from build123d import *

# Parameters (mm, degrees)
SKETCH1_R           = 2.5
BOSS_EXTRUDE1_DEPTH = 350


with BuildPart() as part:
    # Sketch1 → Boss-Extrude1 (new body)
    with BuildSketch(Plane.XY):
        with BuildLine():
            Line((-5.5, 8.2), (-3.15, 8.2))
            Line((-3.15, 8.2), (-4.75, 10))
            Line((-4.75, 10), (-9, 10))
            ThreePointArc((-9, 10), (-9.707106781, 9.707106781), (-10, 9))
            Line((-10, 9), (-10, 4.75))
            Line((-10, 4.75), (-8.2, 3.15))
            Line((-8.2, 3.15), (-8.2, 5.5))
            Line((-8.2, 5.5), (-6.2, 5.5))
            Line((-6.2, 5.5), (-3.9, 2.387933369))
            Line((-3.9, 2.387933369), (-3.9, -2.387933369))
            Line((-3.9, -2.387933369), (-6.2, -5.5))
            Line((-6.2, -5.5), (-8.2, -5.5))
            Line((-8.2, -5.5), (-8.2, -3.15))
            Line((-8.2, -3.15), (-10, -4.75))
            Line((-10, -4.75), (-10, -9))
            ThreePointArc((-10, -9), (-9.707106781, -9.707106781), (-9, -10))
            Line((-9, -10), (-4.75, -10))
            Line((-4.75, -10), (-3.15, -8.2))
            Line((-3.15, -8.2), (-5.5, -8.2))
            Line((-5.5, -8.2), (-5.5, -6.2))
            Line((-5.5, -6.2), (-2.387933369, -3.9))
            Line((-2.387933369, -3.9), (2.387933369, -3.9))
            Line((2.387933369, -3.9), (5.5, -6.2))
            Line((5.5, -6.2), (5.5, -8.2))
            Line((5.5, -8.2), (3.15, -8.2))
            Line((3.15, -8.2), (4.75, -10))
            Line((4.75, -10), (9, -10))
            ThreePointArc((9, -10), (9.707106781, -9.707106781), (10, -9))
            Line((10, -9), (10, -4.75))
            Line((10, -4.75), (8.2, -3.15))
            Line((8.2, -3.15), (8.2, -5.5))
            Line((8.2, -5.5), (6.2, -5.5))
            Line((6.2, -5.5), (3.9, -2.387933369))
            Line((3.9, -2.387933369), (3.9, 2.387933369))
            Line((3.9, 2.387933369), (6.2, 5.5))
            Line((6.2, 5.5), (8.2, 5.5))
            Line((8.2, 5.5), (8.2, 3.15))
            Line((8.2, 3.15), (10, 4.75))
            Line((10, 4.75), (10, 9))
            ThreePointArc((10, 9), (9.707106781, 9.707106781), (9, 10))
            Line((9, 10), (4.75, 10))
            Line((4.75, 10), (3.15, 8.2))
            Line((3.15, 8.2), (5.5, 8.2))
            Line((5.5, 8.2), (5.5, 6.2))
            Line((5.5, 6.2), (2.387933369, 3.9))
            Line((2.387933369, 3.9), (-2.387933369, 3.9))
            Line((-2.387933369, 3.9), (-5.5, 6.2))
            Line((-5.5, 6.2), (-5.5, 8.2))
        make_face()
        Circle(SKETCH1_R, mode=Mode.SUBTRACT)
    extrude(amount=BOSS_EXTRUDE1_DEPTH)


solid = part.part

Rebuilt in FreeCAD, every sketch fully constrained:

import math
import FreeCAD as App
import Part
import Sketcher

V = App.Vector

doc = App.newDocument("Part")
params = doc.addObject("Spreadsheet::Sheet", "Params")
for row, (alias, value) in enumerate([
    ("sketch1_diameter", "5 mm"),
    ("sketch1_radius", "1 mm"),
    ("sketch1_width", "2 mm"),
    ("sketch1_width2", "2.35 mm"),
    ("sketch1_width3", "4.25 mm"),
    ("pad1_length", "350 mm"),
], start=1):
    params.set(f"A{row}", alias)
    params.set(f"B{row}", "=" + value)
    params.setAlias(f"B{row}", alias)

body = doc.addObject("PartDesign::Body", "Body")

sketch1 = body.newObject("Sketcher::SketchObject", "Sketch")
sketch1.AttachmentSupport = (doc.getObject("XY_Plane"), [""])
sketch1.MapMode = "FlatFace"
sketch1.addGeometry(Part.LineSegment(V(-5.5, 8.2, 0), V(-3.1, 8.2, 0)), False)
sketch1.addGeometry(Part.LineSegment(V(-3.1, 8.2, 0), V(-4.8, 10, 0)), False)
sketch1.addGeometry(Part.LineSegment(V(-4.8, 10, 0), V(-9, 10, 0)), False)
sketch1.addGeometry(Part.ArcOfCircle(Part.Circle(V(-9, 9, 0), V(0, 0, 1), 1), math.radians(90), math.radians(180)), False)
sketch1.addGeometry(Part.LineSegment(V(-10, 9, 0), V(-10, 4.8, 0)), False)
sketch1.addGeometry(Part.LineSegment(V(-10, 4.8, 0), V(-8.2, 3.1, 0)), False)
sketch1.addGeometry(Part.LineSegment(V(-8.2, 3.1, 0), V(-8.2, 5.5, 0)), False)
sketch1.addGeometry(Part.LineSegment(V(-8.2, 5.5, 0), V(-6.2, 5.5, 0)), False)
sketch1.addGeometry(Part.LineSegment(V(-6.2, 5.5, 0), V(-3.9, 2.4, 0)), False)
sketch1.addGeometry(Part.LineSegment(V(-3.9, 2.4, 0), V(-3.9, -2.4, 0)), False)
sketch1.addGeometry(Part.LineSegment(V(-3.9, -2.4, 0), V(-6.2, -5.5, 0)), False)
sketch1.addGeometry(Part.LineSegment(V(-6.2, -5.5, 0), V(-8.2, -5.5, 0)), False)
sketch1.addGeometry(Part.LineSegment(V(-8.2, -5.5, 0), V(-8.2, -3.1, 0)), False)
sketch1.addGeometry(Part.LineSegment(V(-8.2, -3.1, 0), V(-10, -4.8, 0)), False)
sketch1.addGeometry(Part.LineSegment(V(-10, -4.8, 0), V(-10, -9, 0)), False)
sketch1.addGeometry(Part.ArcOfCircle(Part.Circle(V(-9, -9, 0), V(0, 0, 1), 1), math.radians(-180), math.radians(-90)), False)
sketch1.addGeometry(Part.LineSegment(V(-9, -10, 0), V(-4.8, -10, 0)), False)
sketch1.addGeometry(Part.LineSegment(V(-4.8, -10, 0), V(-3.1, -8.2, 0)), False)
sketch1.addGeometry(Part.LineSegment(V(-3.1, -8.2, 0), V(-5.5, -8.2, 0)), False)
sketch1.addGeometry(Part.LineSegment(V(-5.5, -8.2, 0), V(-5.5, -6.2, 0)), False)
sketch1.addGeometry(Part.LineSegment(V(-5.5, -6.2, 0), V(-2.4, -3.9, 0)), False)
sketch1.addGeometry(Part.LineSegment(V(-2.4, -3.9, 0), V(2.4, -3.9, 0)), False)
sketch1.addGeometry(Part.LineSegment(V(2.4, -3.9, 0), V(5.5, -6.2, 0)), False)
sketch1.addGeometry(Part.LineSegment(V(5.5, -6.2, 0), V(5.5, -8.2, 0)), False)
sketch1.addGeometry(Part.LineSegment(V(5.5, -8.2, 0), V(3.1, -8.2, 0)), False)
sketch1.addGeometry(Part.LineSegment(V(3.1, -8.2, 0), V(4.8, -10, 0)), False)
sketch1.addGeometry(Part.LineSegment(V(4.8, -10, 0), V(9, -10, 0)), False)
sketch1.addGeometry(Part.ArcOfCircle(Part.Circle(V(9, -9, 0), V(0, 0, 1), 1), math.radians(-90), math.radians(0)), False)
sketch1.addGeometry(Part.LineSegment(V(10, -9, 0), V(10, -4.8, 0)), False)
sketch1.addGeometry(Part.LineSegment(V(10, -4.8, 0), V(8.2, -3.1, 0)), False)
sketch1.addGeometry(Part.LineSegment(V(8.2, -3.1, 0), V(8.2, -5.5, 0)), False)
sketch1.addGeometry(Part.LineSegment(V(8.2, -5.5, 0), V(6.2, -5.5, 0)), False)
sketch1.addGeometry(Part.LineSegment(V(6.2, -5.5, 0), V(3.9, -2.4, 0)), False)
sketch1.addGeometry(Part.LineSegment(V(3.9, -2.4, 0), V(3.9, 2.4, 0)), False)
sketch1.addGeometry(Part.LineSegment(V(3.9, 2.4, 0), V(6.2, 5.5, 0)), False)
sketch1.addGeometry(Part.LineSegment(V(6.2, 5.5, 0), V(8.2, 5.5, 0)), False)
sketch1.addGeometry(Part.LineSegment(V(8.2, 5.5, 0), V(8.2, 3.1, 0)), False)
sketch1.addGeometry(Part.LineSegment(V(8.2, 3.1, 0), V(10, 4.8, 0)), False)
sketch1.addGeometry(Part.LineSegment(V(10, 4.8, 0), V(10, 9, 0)), False)
sketch1.addGeometry(Part.ArcOfCircle(Part.Circle(V(9, 9, 0), V(0, 0, 1), 1), math.radians(0), math.radians(90)), False)
sketch1.addGeometry(Part.LineSegment(V(9, 10, 0), V(4.8, 10, 0)), False)
sketch1.addGeometry(Part.LineSegment(V(4.8, 10, 0), V(3.1, 8.2, 0)), False)
sketch1.addGeometry(Part.LineSegment(V(3.1, 8.2, 0), V(5.5, 8.2, 0)), False)
sketch1.addGeometry(Part.LineSegment(V(5.5, 8.2, 0), V(5.5, 6.2, 0)), False)
sketch1.addGeometry(Part.LineSegment(V(5.5, 6.2, 0), V(2.4, 3.9, 0)), False)
sketch1.addGeometry(Part.LineSegment(V(2.4, 3.9, 0), V(-2.4, 3.9, 0)), False)
sketch1.addGeometry(Part.LineSegment(V(-2.4, 3.9, 0), V(-5.5, 6.2, 0)), False)
sketch1.addGeometry(Part.LineSegment(V(-5.5, 6.2, 0), V(-5.5, 8.2, 0)), False)
sketch1.addGeometry(Part.Circle(V(0, 0, 0), V(0, 0, 1), 2.5), False)
sketch1.addConstraint(Sketcher.Constraint("Coincident", 0, 2, 1, 1))
sketch1.addConstraint(Sketcher.Constraint("Coincident", 1, 2, 2, 1))
sketch1.addConstraint(Sketcher.Constraint("Tangent", 2, 2, 3, 1))
sketch1.addConstraint(Sketcher.Constraint("Tangent", 3, 2, 4, 1))
sketch1.addConstraint(Sketcher.Constraint("Coincident", 4, 2, 5, 1))
sketch1.addConstraint(Sketcher.Constraint("Coincident", 5, 2, 6, 1))
sketch1.addConstraint(Sketcher.Constraint("Coincident", 6, 2, 7, 1))
sketch1.addConstraint(Sketcher.Constraint("Coincident", 7, 2, 8, 1))
sketch1.addConstraint(Sketcher.Constraint("Coincident", 8, 2, 9, 1))
sketch1.addConstraint(Sketcher.Constraint("Coincident", 9, 2, 10, 1))
sketch1.addConstraint(Sketcher.Constraint("Coincident", 10, 2, 11, 1))
sketch1.addConstraint(Sketcher.Constraint("Coincident", 11, 2, 12, 1))
sketch1.addConstraint(Sketcher.Constraint("Coincident", 12, 2, 13, 1))
sketch1.addConstraint(Sketcher.Constraint("Coincident", 13, 2, 14, 1))
sketch1.addConstraint(Sketcher.Constraint("Tangent", 14, 2, 15, 1))
sketch1.addConstraint(Sketcher.Constraint("Tangent", 15, 2, 16, 1))
sketch1.addConstraint(Sketcher.Constraint("Coincident", 16, 2, 17, 1))
sketch1.addConstraint(Sketcher.Constraint("Coincident", 17, 2, 18, 1))
sketch1.addConstraint(Sketcher.Constraint("Coincident", 18, 2, 19, 1))
sketch1.addConstraint(Sketcher.Constraint("Coincident", 19, 2, 20, 1))
sketch1.addConstraint(Sketcher.Constraint("Coincident", 20, 2, 21, 1))
sketch1.addConstraint(Sketcher.Constraint("Coincident", 21, 2, 22, 1))
sketch1.addConstraint(Sketcher.Constraint("Coincident", 22, 2, 23, 1))
sketch1.addConstraint(Sketcher.Constraint("Coincident", 23, 2, 24, 1))
sketch1.addConstraint(Sketcher.Constraint("Coincident", 24, 2, 25, 1))
sketch1.addConstraint(Sketcher.Constraint("Coincident", 25, 2, 26, 1))
sketch1.addConstraint(Sketcher.Constraint("Tangent", 26, 2, 27, 1))
sketch1.addConstraint(Sketcher.Constraint("Tangent", 27, 2, 28, 1))
sketch1.addConstraint(Sketcher.Constraint("Coincident", 28, 2, 29, 1))
sketch1.addConstraint(Sketcher.Constraint("Coincident", 29, 2, 30, 1))
sketch1.addConstraint(Sketcher.Constraint("Coincident", 30, 2, 31, 1))
sketch1.addConstraint(Sketcher.Constraint("Coincident", 31, 2, 32, 1))
sketch1.addConstraint(Sketcher.Constraint("Coincident", 32, 2, 33, 1))
sketch1.addConstraint(Sketcher.Constraint("Coincident", 33, 2, 34, 1))
sketch1.addConstraint(Sketcher.Constraint("Coincident", 34, 2, 35, 1))
sketch1.addConstraint(Sketcher.Constraint("Coincident", 35, 2, 36, 1))
sketch1.addConstraint(Sketcher.Constraint("Coincident", 36, 2, 37, 1))
sketch1.addConstraint(Sketcher.Constraint("Coincident", 37, 2, 38, 1))
sketch1.addConstraint(Sketcher.Constraint("Tangent", 38, 2, 39, 1))
sketch1.addConstraint(Sketcher.Constraint("Tangent", 39, 2, 40, 1))
sketch1.addConstraint(Sketcher.Constraint("Coincident", 40, 2, 41, 1))
sketch1.addConstraint(Sketcher.Constraint("Coincident", 41, 2, 42, 1))
sketch1.addConstraint(Sketcher.Constraint("Coincident", 42, 2, 43, 1))
sketch1.addConstraint(Sketcher.Constraint("Coincident", 43, 2, 44, 1))
sketch1.addConstraint(Sketcher.Constraint("Coincident", 44, 2, 45, 1))
sketch1.addConstraint(Sketcher.Constraint("Coincident", 45, 2, 46, 1))
sketch1.addConstraint(Sketcher.Constraint("Coincident", 46, 2, 47, 1))
sketch1.addConstraint(Sketcher.Constraint("Coincident", 47, 2, 0, 1))
sketch1.addConstraint(Sketcher.Constraint("Horizontal", 0))
sketch1.addConstraint(Sketcher.Constraint("Horizontal", 2))
sketch1.addConstraint(Sketcher.Constraint("Vertical", 4))
sketch1.addConstraint(Sketcher.Constraint("Vertical", 6))
sketch1.addConstraint(Sketcher.Constraint("Horizontal", 7))
sketch1.addConstraint(Sketcher.Constraint("Vertical", 9))
sketch1.addConstraint(Sketcher.Constraint("Horizontal", 11))
sketch1.addConstraint(Sketcher.Constraint("Vertical", 12))
sketch1.addConstraint(Sketcher.Constraint("Vertical", 14))
sketch1.addConstraint(Sketcher.Constraint("Horizontal", 16))
sketch1.addConstraint(Sketcher.Constraint("Horizontal", 18))
sketch1.addConstraint(Sketcher.Constraint("Vertical", 19))
sketch1.addConstraint(Sketcher.Constraint("Horizontal", 21))
sketch1.addConstraint(Sketcher.Constraint("Vertical", 23))
sketch1.addConstraint(Sketcher.Constraint("Horizontal", 24))
sketch1.addConstraint(Sketcher.Constraint("Horizontal", 26))
sketch1.addConstraint(Sketcher.Constraint("Vertical", 28))
sketch1.addConstraint(Sketcher.Constraint("Vertical", 30))
sketch1.addConstraint(Sketcher.Constraint("Horizontal", 31))
sketch1.addConstraint(Sketcher.Constraint("Vertical", 33))
sketch1.addConstraint(Sketcher.Constraint("Horizontal", 35))
sketch1.addConstraint(Sketcher.Constraint("Vertical", 36))
sketch1.addConstraint(Sketcher.Constraint("Vertical", 38))
sketch1.addConstraint(Sketcher.Constraint("Horizontal", 40))
sketch1.addConstraint(Sketcher.Constraint("Horizontal", 42))
sketch1.addConstraint(Sketcher.Constraint("Vertical", 43))
sketch1.addConstraint(Sketcher.Constraint("Horizontal", 45))
sketch1.addConstraint(Sketcher.Constraint("Vertical", 47))
sketch1.addConstraint(Sketcher.Constraint("Coincident", 48, 3, -1, 1))
sketch1.addConstraint(Sketcher.Constraint("Equal", 3, 15))
sketch1.addConstraint(Sketcher.Constraint("Equal", 15, 27))
sketch1.addConstraint(Sketcher.Constraint("Equal", 27, 39))
sketch1.addConstraint(Sketcher.Constraint("Symmetric", 3, 3, 27, 3, -1, 1))
sketch1.addConstraint(Sketcher.Constraint("Symmetric", 15, 3, 39, 3, -1, 1))
sketch1.addConstraint(Sketcher.Constraint("Symmetric", 0, 2, 24, 2, -1, 1))
sketch1.addConstraint(Sketcher.Constraint("Symmetric", 5, 2, 29, 2, -1, 1))
sketch1.addConstraint(Sketcher.Constraint("Symmetric", 7, 2, 31, 2, -1, 1))
sketch1.addConstraint(Sketcher.Constraint("Symmetric", 8, 2, 32, 2, -1, 1))
sketch1.addConstraint(Sketcher.Constraint("Symmetric", 10, 2, 34, 2, -1, 1))
sketch1.addConstraint(Sketcher.Constraint("Symmetric", 12, 2, 36, 2, -1, 1))
sketch1.addConstraint(Sketcher.Constraint("Symmetric", 17, 2, 41, 2, -1, 1))
sketch1.addConstraint(Sketcher.Constraint("Symmetric", 19, 2, 43, 2, -1, 1))
sketch1.addConstraint(Sketcher.Constraint("Symmetric", 20, 2, 44, 2, -1, 1))
sketch1.addConstraint(Sketcher.Constraint("Symmetric", 22, 2, 46, 2, -1, 1))
sketch1.addConstraint(Sketcher.Constraint("Symmetric", 15, 3, 27, 3, -2))
sketch1.addConstraint(Sketcher.Constraint("Symmetric", 19, 2, 22, 2, -2))
sketch1.addConstraint(Sketcher.Constraint("Symmetric", 17, 2, 24, 2, -2))
sketch1.addConstraint(Sketcher.Constraint("Symmetric", 12, 2, 29, 2, -2))
sketch1.addConstraint(Sketcher.Constraint("Symmetric", 10, 2, 31, 2, -2))
sketch1.addConstraint(Sketcher.Constraint("Perpendicular", 1, 13))
sketch1.addConstraint(Sketcher.Constraint("Perpendicular", 5, 17))
sketch1.addConstraint(Sketcher.Constraint("Perpendicular", 8, 20))
sketch1.addConstraint(Sketcher.Constraint("Perpendicular", 10, 22))
sketch1.addConstraint(Sketcher.Constraint("Perpendicular", 13, 25))
sketch1.addConstraint(Sketcher.Constraint("Perpendicular", 17, 29))
sketch1.addConstraint(Sketcher.Constraint("Perpendicular", 22, 34))
sketch1.addConstraint(Sketcher.Constraint("Perpendicular", 25, 37))
sketch1.addConstraint(Sketcher.Constraint("Perpendicular", 29, 41))
sketch1.addConstraint(Sketcher.Constraint("Perpendicular", 34, 46))
sketch1.addConstraint(Sketcher.Constraint("Horizontal", 13, 2, 28, 2))
sketch1.addConstraint(Sketcher.Constraint("Horizontal", 9, 2, 32, 2))
sketch1.addConstraint(Sketcher.Constraint("Equal", 40, 4))
sketch1.addConstraint(Sketcher.Constraint("Equal", 42, 6))
sketch1.addConstraint(Sketcher.Constraint("Equal", 45, 9))
sketch1.addConstraint(Sketcher.Constraint("Equal", 35, 19))
sketch1.addConstraint(Sketcher.Constraint("Equal", 1, 5))
sketch1.addConstraint(Sketcher.Constraint("Equal", 10, 20))
sketch1.addConstraint(Sketcher.Constraint("Diameter", 48, 5.0))
sketch1.addConstraint(Sketcher.Constraint("Radius", 3, 1.0))
sketch1.addConstraint(Sketcher.Constraint("DistanceX", 7, 1, 7, 2, 2.0))
sketch1.addConstraint(Sketcher.Constraint("DistanceX", 3, 3, -1, 1, 9.0))
sketch1.addConstraint(Sketcher.Constraint("DistanceX", 0, 1, 0, 2, 2.35))
sketch1.addConstraint(Sketcher.Constraint("DistanceX", 2, 2, 2, 1, 4.25))
sketch1.addConstraint(Sketcher.Constraint("DistanceY", -1, 1, 0, 2, 8.2))
sketch1.addConstraint(Sketcher.Constraint("DistanceY", -1, 1, 6, 2, 5.5))
sketch1.addConstraint(Sketcher.Constraint("DistanceX", 8, 2, -1, 1, 3.9))
sketch1.addConstraint(Sketcher.Constraint("Distance", 8, 3.869749))
sketch1.setExpression("Constraints[115]", "Params.sketch1_diameter")
sketch1.setExpression("Constraints[116]", "Params.sketch1_radius")
sketch1.setExpression("Constraints[117]", "Params.sketch1_width")
sketch1.setExpression("Constraints[119]", "Params.sketch1_width2")
sketch1.setExpression("Constraints[120]", "Params.sketch1_width3")
pad1 = body.newObject("PartDesign::Pad", "Pad")
pad1.Profile = sketch1
pad1.setExpression("Length", "Params.pad1_length")

doc.recompute()
